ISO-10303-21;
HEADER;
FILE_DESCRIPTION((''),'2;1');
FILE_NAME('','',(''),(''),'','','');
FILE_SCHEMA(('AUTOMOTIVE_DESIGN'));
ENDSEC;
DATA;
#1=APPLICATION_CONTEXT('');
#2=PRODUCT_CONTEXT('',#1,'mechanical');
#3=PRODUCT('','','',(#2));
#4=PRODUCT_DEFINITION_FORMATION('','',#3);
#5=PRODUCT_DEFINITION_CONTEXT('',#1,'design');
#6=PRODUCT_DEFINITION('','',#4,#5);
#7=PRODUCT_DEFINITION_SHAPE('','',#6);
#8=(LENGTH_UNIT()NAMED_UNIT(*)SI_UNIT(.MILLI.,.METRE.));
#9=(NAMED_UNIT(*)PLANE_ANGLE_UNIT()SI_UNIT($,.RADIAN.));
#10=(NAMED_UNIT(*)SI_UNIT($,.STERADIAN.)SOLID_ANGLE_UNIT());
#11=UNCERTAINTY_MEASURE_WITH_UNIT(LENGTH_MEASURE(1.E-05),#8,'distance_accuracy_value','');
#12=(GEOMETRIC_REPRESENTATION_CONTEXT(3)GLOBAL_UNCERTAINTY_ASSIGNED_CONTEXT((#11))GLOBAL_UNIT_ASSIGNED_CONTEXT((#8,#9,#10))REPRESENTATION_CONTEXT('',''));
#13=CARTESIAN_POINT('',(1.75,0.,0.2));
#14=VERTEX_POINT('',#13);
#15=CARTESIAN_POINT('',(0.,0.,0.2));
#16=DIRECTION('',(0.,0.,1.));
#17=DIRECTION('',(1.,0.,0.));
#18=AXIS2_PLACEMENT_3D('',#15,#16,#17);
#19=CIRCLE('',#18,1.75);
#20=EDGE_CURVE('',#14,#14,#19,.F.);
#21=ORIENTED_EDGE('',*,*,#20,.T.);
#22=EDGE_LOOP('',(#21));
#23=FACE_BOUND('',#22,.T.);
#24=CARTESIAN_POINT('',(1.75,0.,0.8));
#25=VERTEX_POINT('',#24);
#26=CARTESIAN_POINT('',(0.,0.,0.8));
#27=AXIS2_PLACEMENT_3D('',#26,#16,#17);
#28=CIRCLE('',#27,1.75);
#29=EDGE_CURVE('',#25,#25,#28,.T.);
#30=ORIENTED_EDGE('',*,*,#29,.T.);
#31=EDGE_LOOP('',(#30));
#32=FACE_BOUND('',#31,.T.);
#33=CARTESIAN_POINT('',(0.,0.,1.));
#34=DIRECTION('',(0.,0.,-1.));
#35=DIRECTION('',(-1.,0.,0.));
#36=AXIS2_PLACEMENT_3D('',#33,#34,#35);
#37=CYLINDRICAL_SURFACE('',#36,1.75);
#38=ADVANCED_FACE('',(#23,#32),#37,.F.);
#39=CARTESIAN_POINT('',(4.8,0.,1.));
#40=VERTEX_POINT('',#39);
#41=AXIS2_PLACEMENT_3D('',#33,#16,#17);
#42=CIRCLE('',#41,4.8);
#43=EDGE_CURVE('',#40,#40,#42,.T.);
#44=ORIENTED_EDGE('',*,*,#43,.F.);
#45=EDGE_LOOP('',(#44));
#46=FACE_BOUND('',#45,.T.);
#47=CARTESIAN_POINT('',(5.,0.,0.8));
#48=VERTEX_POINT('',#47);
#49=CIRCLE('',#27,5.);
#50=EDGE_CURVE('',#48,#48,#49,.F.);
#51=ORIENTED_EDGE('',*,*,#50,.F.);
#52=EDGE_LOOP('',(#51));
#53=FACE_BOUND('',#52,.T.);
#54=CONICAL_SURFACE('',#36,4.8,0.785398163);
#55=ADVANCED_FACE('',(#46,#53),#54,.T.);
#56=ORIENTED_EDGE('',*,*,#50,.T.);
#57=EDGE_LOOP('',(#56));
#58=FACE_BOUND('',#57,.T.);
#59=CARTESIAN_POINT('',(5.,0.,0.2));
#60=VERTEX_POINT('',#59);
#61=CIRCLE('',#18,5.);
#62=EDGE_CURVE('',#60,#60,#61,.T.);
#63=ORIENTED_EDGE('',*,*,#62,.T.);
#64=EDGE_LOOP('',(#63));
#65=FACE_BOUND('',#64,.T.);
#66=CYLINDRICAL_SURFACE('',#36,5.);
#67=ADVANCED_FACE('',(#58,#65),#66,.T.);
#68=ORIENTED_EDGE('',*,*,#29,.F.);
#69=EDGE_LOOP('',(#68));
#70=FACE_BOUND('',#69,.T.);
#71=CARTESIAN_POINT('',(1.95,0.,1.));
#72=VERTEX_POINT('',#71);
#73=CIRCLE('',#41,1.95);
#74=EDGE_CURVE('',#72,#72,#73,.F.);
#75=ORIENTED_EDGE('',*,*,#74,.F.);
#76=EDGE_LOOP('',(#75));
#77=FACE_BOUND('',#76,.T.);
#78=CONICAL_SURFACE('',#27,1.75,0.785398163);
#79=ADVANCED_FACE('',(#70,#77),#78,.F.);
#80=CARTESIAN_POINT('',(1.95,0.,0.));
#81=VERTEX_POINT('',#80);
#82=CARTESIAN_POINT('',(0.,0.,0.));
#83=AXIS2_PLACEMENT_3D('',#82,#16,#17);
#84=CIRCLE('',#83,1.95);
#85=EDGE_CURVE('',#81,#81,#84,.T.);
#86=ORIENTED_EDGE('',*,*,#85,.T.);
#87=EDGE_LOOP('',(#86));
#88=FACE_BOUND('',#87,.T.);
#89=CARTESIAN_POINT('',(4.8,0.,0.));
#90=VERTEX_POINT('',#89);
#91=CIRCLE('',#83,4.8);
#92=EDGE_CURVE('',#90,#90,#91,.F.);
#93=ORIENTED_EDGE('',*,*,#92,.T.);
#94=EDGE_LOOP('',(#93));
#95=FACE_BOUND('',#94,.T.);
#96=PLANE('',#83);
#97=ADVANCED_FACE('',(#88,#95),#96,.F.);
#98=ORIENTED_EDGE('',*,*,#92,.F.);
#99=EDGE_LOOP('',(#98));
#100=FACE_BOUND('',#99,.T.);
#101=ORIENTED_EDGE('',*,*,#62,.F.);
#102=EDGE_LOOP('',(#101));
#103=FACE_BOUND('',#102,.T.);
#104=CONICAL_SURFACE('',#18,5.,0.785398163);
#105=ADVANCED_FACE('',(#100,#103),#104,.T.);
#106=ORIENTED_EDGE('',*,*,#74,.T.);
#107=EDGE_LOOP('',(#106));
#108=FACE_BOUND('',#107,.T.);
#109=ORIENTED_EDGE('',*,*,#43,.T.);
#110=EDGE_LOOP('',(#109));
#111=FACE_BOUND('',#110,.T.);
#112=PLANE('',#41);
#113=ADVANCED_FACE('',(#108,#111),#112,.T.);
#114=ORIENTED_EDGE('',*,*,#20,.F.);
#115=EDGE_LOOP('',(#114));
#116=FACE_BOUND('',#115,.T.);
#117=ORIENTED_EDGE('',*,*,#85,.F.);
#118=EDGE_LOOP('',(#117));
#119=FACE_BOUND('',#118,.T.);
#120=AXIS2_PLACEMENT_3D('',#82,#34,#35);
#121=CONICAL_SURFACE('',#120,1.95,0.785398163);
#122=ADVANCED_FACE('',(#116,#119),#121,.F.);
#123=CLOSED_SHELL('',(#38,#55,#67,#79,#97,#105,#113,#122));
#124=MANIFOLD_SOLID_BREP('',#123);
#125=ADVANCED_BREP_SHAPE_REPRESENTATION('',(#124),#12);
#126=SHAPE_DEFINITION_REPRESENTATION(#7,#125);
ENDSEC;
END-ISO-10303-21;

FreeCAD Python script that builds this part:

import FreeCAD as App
import Part
import Sketcher
from FreeCAD import Vector


def edges_at(feature, points):
    """Names of the edges that pass closest to the given points."""
    edges = feature.Shape.Edges
    near = lambda p: min(range(len(edges)), key=lambda i: edges[i].distToShape(Part.Vertex(*p))[0])
    return sorted({f"Edge{near(p) + 1}" for p in points})

doc = App.newDocument("Part")
body = doc.addObject("PartDesign::Body", "Body")

# Sketch on XY plane
sketch1 = body.newObject("Sketcher::SketchObject", "Sketch")
sketch1.AttachmentSupport = (doc.getObject("XY_Plane"), [""])
sketch1.MapMode = "FlatFace"
sketch1.addGeometry([
    Part.Circle(Vector(0, 0, 0), Vector(0, 0, 1), 5),
    Part.Circle(Vector(0, 0, 0), Vector(0, 0, 1), 1.75),
], False)
sketch1.addConstraint([
    Sketcher.Constraint("Coincident", 0, 3, -1, 1),
    Sketcher.Constraint("Coincident", 1, 3, -1, 1),
    Sketcher.Constraint("Diameter", 0, 10.0),
    Sketcher.Constraint("Diameter", 1, 3.5),
])
pad1 = body.newObject("PartDesign::Pad", "Pad")
pad1.Profile = sketch1
pad1.Length = 1
doc.recompute()

chamfer = body.newObject("PartDesign::Chamfer", "Chamfer")
chamfer.Base = (pad1, edges_at(pad1, [
    (-5, 0, 0),
    (-5, 0, 1),
    (-1.75, 0, 0),
    (-1.75, 0, 1),
]))
chamfer.Size = 0.2

doc.recompute()
